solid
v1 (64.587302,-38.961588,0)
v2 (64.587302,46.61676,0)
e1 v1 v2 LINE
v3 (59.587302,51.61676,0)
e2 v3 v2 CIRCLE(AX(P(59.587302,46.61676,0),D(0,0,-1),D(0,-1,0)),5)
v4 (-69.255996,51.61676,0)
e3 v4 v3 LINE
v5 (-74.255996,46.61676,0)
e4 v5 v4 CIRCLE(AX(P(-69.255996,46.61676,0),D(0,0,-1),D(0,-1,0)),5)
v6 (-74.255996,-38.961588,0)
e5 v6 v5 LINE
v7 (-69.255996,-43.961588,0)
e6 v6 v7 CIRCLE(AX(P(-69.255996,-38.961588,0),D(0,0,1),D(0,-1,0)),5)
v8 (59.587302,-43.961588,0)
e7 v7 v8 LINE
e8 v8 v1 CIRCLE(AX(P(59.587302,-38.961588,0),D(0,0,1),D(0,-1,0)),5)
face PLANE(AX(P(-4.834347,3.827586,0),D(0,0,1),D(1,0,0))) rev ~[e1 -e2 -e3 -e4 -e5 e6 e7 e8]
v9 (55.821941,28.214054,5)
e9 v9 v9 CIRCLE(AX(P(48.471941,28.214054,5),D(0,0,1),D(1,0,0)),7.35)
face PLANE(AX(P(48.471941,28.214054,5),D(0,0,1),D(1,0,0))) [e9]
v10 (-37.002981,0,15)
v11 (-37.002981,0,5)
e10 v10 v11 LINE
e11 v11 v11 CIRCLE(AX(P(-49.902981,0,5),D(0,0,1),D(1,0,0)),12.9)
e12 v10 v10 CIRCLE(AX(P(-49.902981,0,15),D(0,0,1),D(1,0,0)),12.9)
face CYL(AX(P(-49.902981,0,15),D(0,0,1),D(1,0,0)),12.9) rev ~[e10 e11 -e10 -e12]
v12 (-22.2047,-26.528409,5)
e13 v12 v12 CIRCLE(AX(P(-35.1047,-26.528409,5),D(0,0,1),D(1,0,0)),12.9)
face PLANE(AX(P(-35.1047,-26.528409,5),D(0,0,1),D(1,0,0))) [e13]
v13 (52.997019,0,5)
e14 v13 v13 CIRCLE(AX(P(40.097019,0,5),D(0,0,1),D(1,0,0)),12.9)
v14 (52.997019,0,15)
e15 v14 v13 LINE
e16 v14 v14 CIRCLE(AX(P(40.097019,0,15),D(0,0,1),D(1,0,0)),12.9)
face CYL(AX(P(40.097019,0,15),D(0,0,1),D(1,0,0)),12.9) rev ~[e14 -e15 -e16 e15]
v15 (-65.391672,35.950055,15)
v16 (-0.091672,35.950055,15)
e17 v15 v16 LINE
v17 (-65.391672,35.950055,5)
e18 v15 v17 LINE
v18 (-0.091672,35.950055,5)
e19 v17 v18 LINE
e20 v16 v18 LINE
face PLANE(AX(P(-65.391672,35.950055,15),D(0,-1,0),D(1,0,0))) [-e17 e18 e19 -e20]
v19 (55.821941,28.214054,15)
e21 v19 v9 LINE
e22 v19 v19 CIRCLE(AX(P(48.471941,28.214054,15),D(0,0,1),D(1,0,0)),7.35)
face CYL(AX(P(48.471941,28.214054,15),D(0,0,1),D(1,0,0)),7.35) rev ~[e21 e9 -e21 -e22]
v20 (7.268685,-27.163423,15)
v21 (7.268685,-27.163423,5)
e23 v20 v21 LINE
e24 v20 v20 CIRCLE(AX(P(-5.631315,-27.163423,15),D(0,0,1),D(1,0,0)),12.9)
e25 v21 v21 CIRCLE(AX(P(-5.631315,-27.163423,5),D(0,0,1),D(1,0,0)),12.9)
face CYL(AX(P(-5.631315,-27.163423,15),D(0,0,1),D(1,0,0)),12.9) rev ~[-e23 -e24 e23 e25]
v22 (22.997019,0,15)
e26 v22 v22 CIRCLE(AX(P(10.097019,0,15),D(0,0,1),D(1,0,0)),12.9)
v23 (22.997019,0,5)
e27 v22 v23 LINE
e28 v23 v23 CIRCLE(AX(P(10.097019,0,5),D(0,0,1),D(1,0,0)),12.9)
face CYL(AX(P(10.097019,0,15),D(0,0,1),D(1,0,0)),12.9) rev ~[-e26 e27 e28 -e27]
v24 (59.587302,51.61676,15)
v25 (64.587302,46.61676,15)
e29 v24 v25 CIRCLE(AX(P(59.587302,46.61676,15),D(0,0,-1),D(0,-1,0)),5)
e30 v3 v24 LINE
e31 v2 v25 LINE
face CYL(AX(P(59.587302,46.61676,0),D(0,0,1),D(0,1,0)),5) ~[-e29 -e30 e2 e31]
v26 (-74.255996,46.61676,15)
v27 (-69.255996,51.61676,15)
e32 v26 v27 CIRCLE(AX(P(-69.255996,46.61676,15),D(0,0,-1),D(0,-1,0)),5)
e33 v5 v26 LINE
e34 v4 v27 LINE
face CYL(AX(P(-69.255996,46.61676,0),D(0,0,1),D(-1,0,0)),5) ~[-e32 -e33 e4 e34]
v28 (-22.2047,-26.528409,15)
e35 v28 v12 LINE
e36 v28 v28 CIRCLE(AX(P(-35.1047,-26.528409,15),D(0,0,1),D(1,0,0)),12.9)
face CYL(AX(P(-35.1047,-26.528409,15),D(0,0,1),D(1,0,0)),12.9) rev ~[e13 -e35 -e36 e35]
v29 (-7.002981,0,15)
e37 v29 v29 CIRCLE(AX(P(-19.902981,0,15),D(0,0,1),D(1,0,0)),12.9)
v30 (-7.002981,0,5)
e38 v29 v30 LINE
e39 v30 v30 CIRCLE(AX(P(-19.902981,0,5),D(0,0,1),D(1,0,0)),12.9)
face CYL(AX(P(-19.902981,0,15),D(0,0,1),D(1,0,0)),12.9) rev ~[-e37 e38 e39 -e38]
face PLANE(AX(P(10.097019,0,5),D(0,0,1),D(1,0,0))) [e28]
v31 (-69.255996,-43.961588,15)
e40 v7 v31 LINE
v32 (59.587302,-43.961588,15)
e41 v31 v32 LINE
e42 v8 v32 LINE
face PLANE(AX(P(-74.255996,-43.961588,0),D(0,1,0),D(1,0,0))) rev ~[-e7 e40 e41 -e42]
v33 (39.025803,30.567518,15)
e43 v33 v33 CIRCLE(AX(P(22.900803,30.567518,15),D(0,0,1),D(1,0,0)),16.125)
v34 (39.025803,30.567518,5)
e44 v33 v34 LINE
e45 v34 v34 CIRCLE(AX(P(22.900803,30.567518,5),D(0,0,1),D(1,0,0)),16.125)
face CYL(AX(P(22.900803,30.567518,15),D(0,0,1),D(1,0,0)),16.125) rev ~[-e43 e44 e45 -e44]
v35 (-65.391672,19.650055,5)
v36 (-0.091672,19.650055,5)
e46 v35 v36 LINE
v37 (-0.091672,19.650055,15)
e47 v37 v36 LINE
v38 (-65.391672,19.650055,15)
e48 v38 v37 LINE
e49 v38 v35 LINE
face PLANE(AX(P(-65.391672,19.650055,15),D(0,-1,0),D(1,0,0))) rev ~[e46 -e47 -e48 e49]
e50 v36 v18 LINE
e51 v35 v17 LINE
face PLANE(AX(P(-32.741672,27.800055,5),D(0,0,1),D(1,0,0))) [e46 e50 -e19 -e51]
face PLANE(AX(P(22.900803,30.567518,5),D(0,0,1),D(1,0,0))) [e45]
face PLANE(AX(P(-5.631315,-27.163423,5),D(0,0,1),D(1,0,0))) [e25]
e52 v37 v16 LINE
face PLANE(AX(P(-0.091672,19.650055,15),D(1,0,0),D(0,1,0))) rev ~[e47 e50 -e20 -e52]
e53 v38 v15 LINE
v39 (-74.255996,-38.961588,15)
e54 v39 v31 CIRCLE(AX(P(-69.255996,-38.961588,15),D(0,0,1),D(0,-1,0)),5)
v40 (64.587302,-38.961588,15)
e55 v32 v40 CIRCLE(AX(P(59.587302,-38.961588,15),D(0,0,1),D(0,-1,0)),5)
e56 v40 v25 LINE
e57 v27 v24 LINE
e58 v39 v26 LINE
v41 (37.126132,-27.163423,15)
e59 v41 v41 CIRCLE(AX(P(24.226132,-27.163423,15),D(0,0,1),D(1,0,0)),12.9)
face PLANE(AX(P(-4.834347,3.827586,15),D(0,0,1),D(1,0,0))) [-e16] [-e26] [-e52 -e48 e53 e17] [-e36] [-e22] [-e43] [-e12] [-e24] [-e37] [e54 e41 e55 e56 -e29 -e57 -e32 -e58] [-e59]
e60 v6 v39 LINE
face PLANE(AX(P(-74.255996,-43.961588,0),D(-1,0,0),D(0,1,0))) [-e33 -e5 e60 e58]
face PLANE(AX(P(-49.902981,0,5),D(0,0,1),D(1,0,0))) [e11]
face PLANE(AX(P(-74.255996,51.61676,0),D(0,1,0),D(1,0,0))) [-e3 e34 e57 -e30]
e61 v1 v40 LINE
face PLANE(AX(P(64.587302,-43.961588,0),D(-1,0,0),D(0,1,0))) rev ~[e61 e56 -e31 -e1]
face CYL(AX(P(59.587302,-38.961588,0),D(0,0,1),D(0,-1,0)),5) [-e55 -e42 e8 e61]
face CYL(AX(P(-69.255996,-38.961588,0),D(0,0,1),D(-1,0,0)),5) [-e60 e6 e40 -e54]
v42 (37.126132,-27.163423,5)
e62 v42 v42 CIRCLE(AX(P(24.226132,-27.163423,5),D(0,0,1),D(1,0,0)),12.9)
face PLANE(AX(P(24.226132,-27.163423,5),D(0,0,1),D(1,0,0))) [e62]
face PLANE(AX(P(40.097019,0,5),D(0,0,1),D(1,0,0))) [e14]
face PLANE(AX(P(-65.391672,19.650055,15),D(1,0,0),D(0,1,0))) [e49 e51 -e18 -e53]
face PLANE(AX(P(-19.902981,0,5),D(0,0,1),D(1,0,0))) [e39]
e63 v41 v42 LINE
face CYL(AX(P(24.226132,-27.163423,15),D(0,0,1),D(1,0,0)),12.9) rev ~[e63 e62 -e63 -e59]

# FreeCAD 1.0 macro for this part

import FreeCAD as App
import Part
import Sketcher
from FreeCAD import Vector
Q = App.Units.Quantity


def edges_at(feature, points):
    """Names of the edges that pass closest to the given points."""
    edges = feature.Shape.Edges
    near = lambda p: min(range(len(edges)), key=lambda i: edges[i].distToShape(Part.Vertex(*p))[0])
    return sorted({f"Edge{near(p) + 1}" for p in points})


def add_polygon(sketch, points):
    """Adds a closed chain of lines whose ends are joined by coincident constraints."""
    first, n = sketch.GeometryCount, len(points)
    for a, b in zip(points, points[1:] + points[:1]):
        sketch.addGeometry(Part.LineSegment(App.Vector(*a, 0), App.Vector(*b, 0)), False)
    for i in range(n):
        sketch.addConstraint(Sketcher.Constraint("Coincident", first + i, 2, first + (i + 1) % n, 1))

doc = App.newDocument("Part")
body = doc.addObject("PartDesign::Body", "Body")

sketch1 = body.newObject("Sketcher::SketchObject", "Sketch")
sketch1.AttachmentSupport = (doc.getObject("XY_Plane"), [""])
sketch1.MapMode = "FlatFace"
add_polygon(sketch1, [(-74, 52), (-74, -44), (65, -44), (65, 52)])
sketch1.addConstraint(Sketcher.Constraint("Vertical", 0))
sketch1.addConstraint(Sketcher.Constraint("Horizontal", 1))
sketch1.addConstraint(Sketcher.Constraint("Vertical", 2))
sketch1.addConstraint(Sketcher.Constraint("Horizontal", 3))
sketch1.addConstraint(Sketcher.Constraint("DistanceX", 1, 1, 1, 2, Q("138.843298 mm")))
sketch1.addConstraint(Sketcher.Constraint("DistanceY", 0, 2, 0, 1, Q("95.578349 mm")))
sketch1.addConstraint(Sketcher.Constraint("DistanceX", -1, 1, 1, 2, Q("64.587302 mm")))
sketch1.addConstraint(Sketcher.Constraint("DistanceY", 0, 2, -1, 1, Q("43.961588 mm")))
pad1 = body.newObject("PartDesign::Pad", "Pad")
pad1.Profile = sketch1
pad1.Length = 15

sketch2 = body.newObject("Sketcher::SketchObject", "Sketch001")
sketch2.AttachmentSupport = (doc.getObject("XY_Plane"), [""])
sketch2.MapMode = "FlatFace"
sketch2.AttachmentOffset = App.Placement(Vector(0, 0, 15), App.Rotation())
sketch2.addGeometry(Part.Circle(Vector(10, 0, 0), Vector(0, 0, 1), 13), False)
add_polygon(sketch2, [(-65, 36), (-65, 20), (0, 20), (0, 36)])
sketch2.addGeometry(Part.Circle(Vector(-20, 0, 0), Vector(0, 0, 1), 13), False)
sketch2.addGeometry(Part.Circle(Vector(40, 0, 0), Vector(0, 0, 1), 13), False)
sketch2.addGeometry(Part.Circle(Vector(-50, 0, 0), Vector(0, 0, 1), 13), False)
sketch2.addGeometry(Part.Circle(Vector(48, 28, 0), Vector(0, 0, 1), 7), False)
sketch2.addGeometry(Part.Circle(Vector(-6, -27, 0), Vector(0, 0, 1), 13), False)
sketch2.addGeometry(Part.Circle(Vector(-35, -27, 0), Vector(0, 0, 1), 13), False)
sketch2.addGeometry(Part.Circle(Vector(23, 31, 0), Vector(0, 0, 1), 16), False)
sketch2.addGeometry(Part.Circle(Vector(24, -27, 0), Vector(0, 0, 1), 13), False)
sketch2.addConstraint(Sketcher.Constraint("Vertical", 1))
sketch2.addConstraint(Sketcher.Constraint("Horizontal", 2))
sketch2.addConstraint(Sketcher.Constraint("Vertical", 3))
sketch2.addConstraint(Sketcher.Constraint("Horizontal", 4))
sketch2.addConstraint(Sketcher.Constraint("Equal", 0, 5))
sketch2.addConstraint(Sketcher.Constraint("Equal", 5, 6))
sketch2.addConstraint(Sketcher.Constraint("Equal", 6, 7))
sketch2.addConstraint(Sketcher.Constraint("Equal", 7, 9))
sketch2.addConstraint(Sketcher.Constraint("Equal", 9, 10))
sketch2.addConstraint(Sketcher.Constraint("Equal", 10, 12))
sketch2.addConstraint(Sketcher.Constraint("PointOnObject", 0, 3, -1))
sketch2.addConstraint(Sketcher.Constraint("PointOnObject", 5, 3, -1))
sketch2.addConstraint(Sketcher.Constraint("PointOnObject", 6, 3, -1))
sketch2.addConstraint(Sketcher.Constraint("PointOnObject", 7, 3, -1))
sketch2.addConstraint(Sketcher.Constraint("Horizontal", 9, 3, 12, 3))
sketch2.addConstraint(Sketcher.Constraint("Diameter", 0, Q("25.8 mm")))
sketch2.addConstraint(Sketcher.Constraint("Diameter", 8, Q("14.7 mm")))
sketch2.addConstraint(Sketcher.Constraint("Diameter", 11, Q("32.25 mm")))
sketch2.addConstraint(Sketcher.Constraint("DistanceX", 2, 1, 2, 2, Q("65.3 mm")))
sketch2.addConstraint(Sketcher.Constraint("DistanceY", 1, 2, 1, 1, Q("16.3 mm")))
sketch2.addConstraint(Sketcher.Constraint("DistanceX", 5, 3, 0, 3, Q("30 mm")))
sketch2.addConstraint(Sketcher.Constraint("DistanceX", 0, 3, 6, 3, Q("30 mm")))
sketch2.addConstraint(Sketcher.Constraint("DistanceX", 7, 3, 5, 3, Q("30 mm")))
sketch2.addConstraint(Sketcher.Constraint("DistanceY", 8, 3, 3, 2, Q("7.736001 mm")))
sketch2.addConstraint(Sketcher.Constraint("DistanceX", 10, 3, -1, 1, Q("35.1047 mm")))
sketch2.addConstraint(Sketcher.Constraint("DistanceX", -1, 1, 0, 3, Q("10.097019 mm")))
sketch2.addConstraint(Sketcher.Constraint("DistanceX", -1, 1, 8, 3, Q("48.471941 mm")))
sketch2.addConstraint(Sketcher.Constraint("DistanceY", 10, 3, -1, 1, Q("26.528409 mm")))
sketch2.addConstraint(Sketcher.Constraint("DistanceY", -1, 1, 11, 3, Q("30.567518 mm")))
sketch2.addConstraint(Sketcher.Constraint("DistanceX", -1, 1, 12, 3, Q("24.226132 mm")))
sketch2.addConstraint(Sketcher.Constraint("DistanceX", 1, 2, -1, 1, Q("65.391672 mm")))
sketch2.addConstraint(Sketcher.Constraint("DistanceX", 11, 3, 8, 3, Q("25.571138 mm")))
sketch2.addConstraint(Sketcher.Constraint("DistanceX", 9, 3, 11, 3, Q("28.532118 mm")))
sketch2.addConstraint(Sketcher.Constraint("DistanceY", 9, 3, 11, 3, Q("57.730941 mm")))
sketch2.addConstraint(Sketcher.Constraint("DistanceY", 9, 3, 1, 2, Q("46.813478 mm")))
pocket1 = body.newObject("PartDesign::Pocket", "Pocket")
pocket1.Profile = sketch2
pocket1.Length = 10
doc.recompute()

fillet = body.newObject("PartDesign::Fillet", "Fillet")
fillet.Base = (pocket1, edges_at(pocket1, [
    (64.587, -43.962, 7.5),
    (-74.256, -43.962, 7.5),
    (64.587, 51.617, 7.5),
    (-74.256, 51.617, 7.5),
]))
fillet.Radius = 5

doc.recompute()
